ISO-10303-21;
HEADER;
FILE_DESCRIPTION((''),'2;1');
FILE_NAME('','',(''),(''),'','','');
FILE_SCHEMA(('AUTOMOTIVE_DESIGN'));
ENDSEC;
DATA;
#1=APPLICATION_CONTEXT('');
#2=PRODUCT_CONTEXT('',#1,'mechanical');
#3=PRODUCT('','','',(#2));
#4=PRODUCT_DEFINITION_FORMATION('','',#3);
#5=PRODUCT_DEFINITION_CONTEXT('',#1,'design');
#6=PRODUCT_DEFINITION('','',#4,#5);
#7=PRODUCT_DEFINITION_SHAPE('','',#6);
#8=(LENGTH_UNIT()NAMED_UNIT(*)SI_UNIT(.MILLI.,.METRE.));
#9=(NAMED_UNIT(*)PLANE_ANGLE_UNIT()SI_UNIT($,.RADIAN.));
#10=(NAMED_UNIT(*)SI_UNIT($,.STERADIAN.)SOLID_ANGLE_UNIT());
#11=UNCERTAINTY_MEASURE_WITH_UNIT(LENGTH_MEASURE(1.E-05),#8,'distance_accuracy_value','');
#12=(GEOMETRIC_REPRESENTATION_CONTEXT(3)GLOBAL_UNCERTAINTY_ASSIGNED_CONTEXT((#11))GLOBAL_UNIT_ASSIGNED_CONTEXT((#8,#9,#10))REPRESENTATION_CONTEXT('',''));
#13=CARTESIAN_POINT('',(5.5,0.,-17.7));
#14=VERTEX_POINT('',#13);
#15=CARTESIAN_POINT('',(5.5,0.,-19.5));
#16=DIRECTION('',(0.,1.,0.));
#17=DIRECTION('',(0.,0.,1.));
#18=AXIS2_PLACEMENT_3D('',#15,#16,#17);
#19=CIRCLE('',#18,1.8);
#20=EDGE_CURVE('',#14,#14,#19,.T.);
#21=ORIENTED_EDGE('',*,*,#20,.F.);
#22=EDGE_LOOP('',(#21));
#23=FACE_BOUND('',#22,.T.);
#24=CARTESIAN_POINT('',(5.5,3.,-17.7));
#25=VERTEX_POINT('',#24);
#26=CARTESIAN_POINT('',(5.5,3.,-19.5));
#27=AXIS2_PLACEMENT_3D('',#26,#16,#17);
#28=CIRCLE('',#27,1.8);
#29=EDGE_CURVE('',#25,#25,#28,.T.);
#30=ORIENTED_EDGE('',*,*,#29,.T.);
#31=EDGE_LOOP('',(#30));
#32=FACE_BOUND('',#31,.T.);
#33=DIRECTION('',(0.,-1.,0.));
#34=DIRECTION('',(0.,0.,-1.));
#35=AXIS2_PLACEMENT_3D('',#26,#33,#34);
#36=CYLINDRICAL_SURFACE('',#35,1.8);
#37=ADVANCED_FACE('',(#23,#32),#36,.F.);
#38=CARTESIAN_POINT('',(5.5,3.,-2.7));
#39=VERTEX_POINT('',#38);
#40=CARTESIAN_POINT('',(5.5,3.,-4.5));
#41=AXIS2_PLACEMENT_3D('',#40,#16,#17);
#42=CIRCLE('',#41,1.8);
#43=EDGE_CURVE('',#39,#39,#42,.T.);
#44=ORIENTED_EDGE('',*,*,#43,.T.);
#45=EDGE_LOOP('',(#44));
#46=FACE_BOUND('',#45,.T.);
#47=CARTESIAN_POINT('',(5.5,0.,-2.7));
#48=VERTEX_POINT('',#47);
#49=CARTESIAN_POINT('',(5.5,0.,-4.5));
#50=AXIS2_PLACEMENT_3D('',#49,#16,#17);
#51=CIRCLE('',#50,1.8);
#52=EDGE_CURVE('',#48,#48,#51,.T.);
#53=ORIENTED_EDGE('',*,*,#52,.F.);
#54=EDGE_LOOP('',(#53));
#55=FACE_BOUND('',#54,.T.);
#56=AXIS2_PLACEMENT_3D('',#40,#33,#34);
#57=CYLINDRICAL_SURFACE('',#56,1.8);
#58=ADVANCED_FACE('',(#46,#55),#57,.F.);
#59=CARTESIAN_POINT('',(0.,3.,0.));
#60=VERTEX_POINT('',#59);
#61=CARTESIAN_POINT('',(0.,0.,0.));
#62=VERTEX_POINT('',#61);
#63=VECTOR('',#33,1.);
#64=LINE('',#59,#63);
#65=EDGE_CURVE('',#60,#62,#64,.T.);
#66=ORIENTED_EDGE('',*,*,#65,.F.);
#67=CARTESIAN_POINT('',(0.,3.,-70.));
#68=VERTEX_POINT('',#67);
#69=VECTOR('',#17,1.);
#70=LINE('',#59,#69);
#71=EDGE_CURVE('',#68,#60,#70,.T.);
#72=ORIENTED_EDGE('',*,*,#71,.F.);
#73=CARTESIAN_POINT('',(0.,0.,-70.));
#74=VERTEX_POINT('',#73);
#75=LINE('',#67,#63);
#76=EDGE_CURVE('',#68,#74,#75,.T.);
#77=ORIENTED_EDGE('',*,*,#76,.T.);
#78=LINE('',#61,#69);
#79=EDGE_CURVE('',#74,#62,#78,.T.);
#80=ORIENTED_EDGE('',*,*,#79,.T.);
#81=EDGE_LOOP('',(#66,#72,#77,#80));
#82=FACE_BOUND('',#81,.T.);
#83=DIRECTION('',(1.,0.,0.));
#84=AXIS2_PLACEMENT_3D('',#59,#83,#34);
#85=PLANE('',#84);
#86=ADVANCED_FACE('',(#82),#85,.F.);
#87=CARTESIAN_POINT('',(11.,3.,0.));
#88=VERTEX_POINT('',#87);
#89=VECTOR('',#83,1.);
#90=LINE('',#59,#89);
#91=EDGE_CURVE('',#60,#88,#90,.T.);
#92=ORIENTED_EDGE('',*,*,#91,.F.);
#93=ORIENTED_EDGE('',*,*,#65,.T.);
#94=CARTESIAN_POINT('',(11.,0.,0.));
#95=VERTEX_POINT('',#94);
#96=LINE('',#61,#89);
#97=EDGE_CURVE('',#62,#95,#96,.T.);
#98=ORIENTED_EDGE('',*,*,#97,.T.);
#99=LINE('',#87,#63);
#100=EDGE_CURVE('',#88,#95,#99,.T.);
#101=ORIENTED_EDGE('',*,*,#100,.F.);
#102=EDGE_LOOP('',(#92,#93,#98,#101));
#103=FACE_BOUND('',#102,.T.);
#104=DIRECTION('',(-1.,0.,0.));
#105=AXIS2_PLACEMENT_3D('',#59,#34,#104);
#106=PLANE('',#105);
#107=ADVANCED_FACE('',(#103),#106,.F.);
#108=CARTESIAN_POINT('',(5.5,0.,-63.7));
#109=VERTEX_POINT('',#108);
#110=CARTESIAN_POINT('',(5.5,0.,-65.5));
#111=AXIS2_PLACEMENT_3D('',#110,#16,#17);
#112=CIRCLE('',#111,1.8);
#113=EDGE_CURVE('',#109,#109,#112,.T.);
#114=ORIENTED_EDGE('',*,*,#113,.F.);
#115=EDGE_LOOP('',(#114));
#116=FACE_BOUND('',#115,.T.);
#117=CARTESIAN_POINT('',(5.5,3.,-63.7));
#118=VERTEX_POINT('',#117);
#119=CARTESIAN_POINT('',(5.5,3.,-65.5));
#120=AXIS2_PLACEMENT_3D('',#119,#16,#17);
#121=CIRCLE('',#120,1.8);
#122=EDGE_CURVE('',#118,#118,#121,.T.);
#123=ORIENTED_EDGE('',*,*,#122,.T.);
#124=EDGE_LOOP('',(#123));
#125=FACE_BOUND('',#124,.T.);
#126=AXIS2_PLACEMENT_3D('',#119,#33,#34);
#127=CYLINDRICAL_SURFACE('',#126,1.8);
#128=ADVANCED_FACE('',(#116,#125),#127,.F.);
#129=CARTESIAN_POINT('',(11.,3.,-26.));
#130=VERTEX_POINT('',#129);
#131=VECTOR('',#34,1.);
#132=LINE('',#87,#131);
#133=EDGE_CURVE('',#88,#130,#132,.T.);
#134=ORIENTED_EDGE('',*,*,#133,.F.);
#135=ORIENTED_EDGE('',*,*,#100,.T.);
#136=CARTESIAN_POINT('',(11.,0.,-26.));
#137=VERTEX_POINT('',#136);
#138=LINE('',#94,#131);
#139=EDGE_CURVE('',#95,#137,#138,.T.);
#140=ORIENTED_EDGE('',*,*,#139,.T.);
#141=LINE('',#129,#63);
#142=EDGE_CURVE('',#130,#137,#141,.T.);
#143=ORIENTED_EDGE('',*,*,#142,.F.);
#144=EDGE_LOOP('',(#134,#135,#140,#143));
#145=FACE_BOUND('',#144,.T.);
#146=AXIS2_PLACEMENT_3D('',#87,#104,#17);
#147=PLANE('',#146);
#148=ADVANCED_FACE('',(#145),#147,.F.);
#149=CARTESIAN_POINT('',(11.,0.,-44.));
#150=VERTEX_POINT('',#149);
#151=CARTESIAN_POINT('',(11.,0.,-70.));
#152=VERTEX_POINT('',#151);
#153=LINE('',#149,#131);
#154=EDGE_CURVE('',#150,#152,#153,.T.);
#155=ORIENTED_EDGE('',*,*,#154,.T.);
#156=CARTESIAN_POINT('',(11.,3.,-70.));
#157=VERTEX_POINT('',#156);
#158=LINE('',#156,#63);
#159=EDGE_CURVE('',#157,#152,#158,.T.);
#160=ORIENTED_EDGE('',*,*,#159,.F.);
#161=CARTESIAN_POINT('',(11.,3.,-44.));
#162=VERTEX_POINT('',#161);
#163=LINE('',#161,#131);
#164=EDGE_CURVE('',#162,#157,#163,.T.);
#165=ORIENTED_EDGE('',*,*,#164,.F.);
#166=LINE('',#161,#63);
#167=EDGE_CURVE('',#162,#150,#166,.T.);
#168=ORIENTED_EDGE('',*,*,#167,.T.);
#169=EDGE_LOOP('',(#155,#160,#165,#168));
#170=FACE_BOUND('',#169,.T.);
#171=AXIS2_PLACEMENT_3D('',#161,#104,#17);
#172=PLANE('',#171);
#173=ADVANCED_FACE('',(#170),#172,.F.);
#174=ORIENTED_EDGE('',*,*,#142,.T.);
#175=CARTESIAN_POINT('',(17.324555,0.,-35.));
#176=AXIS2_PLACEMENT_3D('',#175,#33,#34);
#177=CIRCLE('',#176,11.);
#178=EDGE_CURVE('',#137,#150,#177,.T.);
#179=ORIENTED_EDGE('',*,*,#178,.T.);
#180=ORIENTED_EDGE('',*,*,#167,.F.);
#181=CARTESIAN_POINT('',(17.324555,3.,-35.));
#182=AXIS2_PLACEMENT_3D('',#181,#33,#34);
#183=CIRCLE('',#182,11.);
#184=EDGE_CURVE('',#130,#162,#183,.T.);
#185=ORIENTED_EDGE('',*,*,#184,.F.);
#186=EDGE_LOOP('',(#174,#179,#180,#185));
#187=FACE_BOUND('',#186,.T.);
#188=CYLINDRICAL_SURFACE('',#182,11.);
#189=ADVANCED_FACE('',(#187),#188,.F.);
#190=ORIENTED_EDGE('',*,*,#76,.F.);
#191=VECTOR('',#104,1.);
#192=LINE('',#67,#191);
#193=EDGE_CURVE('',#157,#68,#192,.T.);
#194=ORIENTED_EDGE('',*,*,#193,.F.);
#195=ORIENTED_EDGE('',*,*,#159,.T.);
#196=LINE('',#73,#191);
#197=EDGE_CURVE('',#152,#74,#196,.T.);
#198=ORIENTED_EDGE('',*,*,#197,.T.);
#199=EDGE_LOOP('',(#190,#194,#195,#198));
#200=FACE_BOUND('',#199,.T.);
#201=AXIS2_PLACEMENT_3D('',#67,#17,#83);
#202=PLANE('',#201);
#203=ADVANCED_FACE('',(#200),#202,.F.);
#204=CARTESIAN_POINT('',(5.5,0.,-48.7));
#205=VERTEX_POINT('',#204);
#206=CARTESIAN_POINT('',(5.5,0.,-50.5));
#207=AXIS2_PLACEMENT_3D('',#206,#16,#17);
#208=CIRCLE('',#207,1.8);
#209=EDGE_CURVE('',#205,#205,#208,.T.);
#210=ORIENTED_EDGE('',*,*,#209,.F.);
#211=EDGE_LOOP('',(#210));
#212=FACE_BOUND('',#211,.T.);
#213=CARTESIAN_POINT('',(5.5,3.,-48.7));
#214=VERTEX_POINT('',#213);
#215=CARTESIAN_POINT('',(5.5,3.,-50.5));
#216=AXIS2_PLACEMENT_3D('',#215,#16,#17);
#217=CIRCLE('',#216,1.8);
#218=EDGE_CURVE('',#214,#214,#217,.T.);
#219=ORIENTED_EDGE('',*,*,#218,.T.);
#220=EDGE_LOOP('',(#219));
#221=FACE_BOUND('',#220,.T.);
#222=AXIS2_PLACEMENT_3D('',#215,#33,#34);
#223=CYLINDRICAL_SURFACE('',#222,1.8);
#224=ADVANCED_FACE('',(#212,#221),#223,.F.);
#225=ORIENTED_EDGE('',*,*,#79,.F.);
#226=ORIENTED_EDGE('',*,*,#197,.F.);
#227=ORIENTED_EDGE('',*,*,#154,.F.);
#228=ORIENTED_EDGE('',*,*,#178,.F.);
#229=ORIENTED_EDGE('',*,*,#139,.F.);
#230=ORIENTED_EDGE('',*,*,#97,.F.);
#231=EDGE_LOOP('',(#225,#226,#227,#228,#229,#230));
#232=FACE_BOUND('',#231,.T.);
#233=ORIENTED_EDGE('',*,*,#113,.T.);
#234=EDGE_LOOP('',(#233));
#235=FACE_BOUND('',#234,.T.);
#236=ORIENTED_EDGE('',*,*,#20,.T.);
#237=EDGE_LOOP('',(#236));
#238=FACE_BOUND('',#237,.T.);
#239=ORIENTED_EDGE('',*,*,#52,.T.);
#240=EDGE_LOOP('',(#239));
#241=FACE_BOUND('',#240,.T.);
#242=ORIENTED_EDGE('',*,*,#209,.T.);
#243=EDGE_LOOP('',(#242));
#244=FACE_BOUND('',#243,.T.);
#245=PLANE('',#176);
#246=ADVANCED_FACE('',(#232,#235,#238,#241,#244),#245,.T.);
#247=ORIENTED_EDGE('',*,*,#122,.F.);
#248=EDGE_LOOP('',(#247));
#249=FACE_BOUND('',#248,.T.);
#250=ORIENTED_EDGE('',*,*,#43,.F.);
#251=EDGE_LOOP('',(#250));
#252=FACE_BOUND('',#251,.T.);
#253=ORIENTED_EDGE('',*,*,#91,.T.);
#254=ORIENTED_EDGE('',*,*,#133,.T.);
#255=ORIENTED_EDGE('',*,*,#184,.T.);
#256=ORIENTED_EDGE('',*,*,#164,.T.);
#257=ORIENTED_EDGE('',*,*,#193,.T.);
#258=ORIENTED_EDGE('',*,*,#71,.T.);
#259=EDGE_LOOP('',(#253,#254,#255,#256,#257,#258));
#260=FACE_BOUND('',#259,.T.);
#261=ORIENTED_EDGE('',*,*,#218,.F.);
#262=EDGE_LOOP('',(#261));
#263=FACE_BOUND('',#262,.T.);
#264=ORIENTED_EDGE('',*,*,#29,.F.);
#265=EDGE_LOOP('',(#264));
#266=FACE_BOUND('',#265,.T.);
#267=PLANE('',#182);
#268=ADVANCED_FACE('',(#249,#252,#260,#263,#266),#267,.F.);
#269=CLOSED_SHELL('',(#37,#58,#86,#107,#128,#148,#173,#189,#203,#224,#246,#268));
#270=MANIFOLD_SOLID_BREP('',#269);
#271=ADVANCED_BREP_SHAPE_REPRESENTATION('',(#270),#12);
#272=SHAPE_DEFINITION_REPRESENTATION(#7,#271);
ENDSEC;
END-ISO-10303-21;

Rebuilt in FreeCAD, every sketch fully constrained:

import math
import FreeCAD as App
import Part
import Sketcher
from FreeCAD import Vector
Q = App.Units.Quantity

doc = App.newDocument("Part")
body = doc.addObject("PartDesign::Body", "Body")

# Sketch on XZ plane
sketch1 = doc.addObject("Sketcher::SketchObject", "Sketch")
body.addObject(sketch1)
sketch1.AttachmentSupport = (doc.XZ_Plane, [""])
sketch1.MapMode = "FlatFace"
sketch1.addGeometry([
    Part.LineSegment(Vector(11, -44, 0), Vector(11, -70, 0)),  # 0
    Part.LineSegment(Vector(11, -70, 0), Vector(0, -70, 0)),  # 1
    Part.LineSegment(Vector(0, -70, 0), Vector(0, 0, 0)),  # 2
    Part.LineSegment(Vector(0, 0, 0), Vector(11, 0, 0)),  # 3
    Part.LineSegment(Vector(11, 0, 0), Vector(11, -26, 0)),  # 4
    Part.ArcOfCircle(Part.Circle(Vector(17.3, -35, 0), Vector(0, 0, 1), 11), math.radians(125), math.radians(235)),  # 5
    Part.Circle(Vector(5.5, -4.5, 0), Vector(0, 0, 1), 1.8),  # 6
    Part.Circle(Vector(5.5, -19.5, 0), Vector(0, 0, 1), 1.8),  # 7
    Part.Circle(Vector(5.5, -50.5, 0), Vector(0, 0, 1), 1.8),  # 8
    Part.Circle(Vector(5.5, -65.5, 0), Vector(0, 0, 1), 1.8),  # 9
], False)
sketch1.addConstraint([
    Sketcher.Constraint("Coincident", 0, 2, 1, 1),
    Sketcher.Constraint("Coincident", 1, 2, 2, 1),
    Sketcher.Constraint("Coincident", 2, 2, 3, 1),
    Sketcher.Constraint("Coincident", 3, 2, 4, 1),
    Sketcher.Constraint("Coincident", 4, 2, 5, 1),
    Sketcher.Constraint("Coincident", 5, 2, 0, 1),
    Sketcher.Constraint("Vertical", 0),
    Sketcher.Constraint("Horizontal", 1),
    Sketcher.Constraint("Vertical", 2),
    Sketcher.Constraint("Horizontal", 3),
    Sketcher.Constraint("Vertical", 4),
    Sketcher.Constraint("Coincident", 2, 2, -1, 1),
    Sketcher.Constraint("Equal", 6, 7),
    Sketcher.Constraint("Equal", 7, 8),
    Sketcher.Constraint("Equal", 8, 9),
    Sketcher.Constraint("Vertical", 6, 3, 7, 3),
    Sketcher.Constraint("Vertical", 7, 3, 8, 3),
    Sketcher.Constraint("Vertical", 8, 3, 9, 3),
    Sketcher.Constraint("Vertical", 0, 2, 3, 2),
    Sketcher.Constraint("Equal", 0, 4),
    Sketcher.Constraint("Radius", 5, Q("11 mm")),
    Sketcher.Constraint("Diameter", 6, Q("3.6 mm")),
    Sketcher.Constraint("DistanceX", 1, 2, 1, 1, Q("11 mm")),
    Sketcher.Constraint("DistanceY", 0, 2, 0, 1, Q("26 mm")),
    Sketcher.Constraint("DistanceY", 2, 1, 2, 2, Q("70 mm")),
    Sketcher.Constraint("DistanceY", 7, 3, 6, 3, Q("15 mm")),
    Sketcher.Constraint("DistanceY", 8, 3, 7, 3, Q("31 mm")),
    Sketcher.Constraint("DistanceY", 9, 3, 8, 3, Q("15 mm")),
    Sketcher.Constraint("DistanceX", -1, 1, 6, 3, Q("5.5 mm")),
    Sketcher.Constraint("DistanceY", 6, 3, -1, 1, Q("4.5 mm")),
])
pad1 = doc.addObject("PartDesign::Pad", "Pad")
body.addObject(pad1)
pad1.Profile = sketch1
pad1.Length = 3
pad1.Reversed = True

doc.recompute()
